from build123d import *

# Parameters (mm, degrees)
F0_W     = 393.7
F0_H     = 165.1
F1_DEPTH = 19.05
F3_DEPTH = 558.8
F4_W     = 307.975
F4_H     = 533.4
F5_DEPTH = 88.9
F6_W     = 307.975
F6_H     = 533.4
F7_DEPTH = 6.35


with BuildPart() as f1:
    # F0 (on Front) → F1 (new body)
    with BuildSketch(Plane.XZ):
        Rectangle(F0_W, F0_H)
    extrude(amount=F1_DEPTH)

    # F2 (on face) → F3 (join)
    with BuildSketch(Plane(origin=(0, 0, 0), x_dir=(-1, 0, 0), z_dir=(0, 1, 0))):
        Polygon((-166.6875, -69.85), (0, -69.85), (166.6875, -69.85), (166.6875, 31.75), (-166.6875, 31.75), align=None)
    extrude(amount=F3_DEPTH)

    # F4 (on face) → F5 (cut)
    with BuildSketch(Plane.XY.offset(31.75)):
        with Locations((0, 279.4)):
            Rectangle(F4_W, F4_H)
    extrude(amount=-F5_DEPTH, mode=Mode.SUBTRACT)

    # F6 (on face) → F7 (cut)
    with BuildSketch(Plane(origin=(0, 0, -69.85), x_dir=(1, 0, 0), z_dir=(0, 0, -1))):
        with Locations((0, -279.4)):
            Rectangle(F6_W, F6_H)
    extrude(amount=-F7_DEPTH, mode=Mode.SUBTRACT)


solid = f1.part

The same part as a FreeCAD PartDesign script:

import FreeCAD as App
import Part
import Sketcher

V = App.Vector
Q = App.Units.Quantity


def add_polygon(sketch, points):
    """Adds a closed chain of lines whose ends are joined by coincident constraints."""
    first, n = sketch.GeometryCount, len(points)
    for a, b in zip(points, points[1:] + points[:1]):
        sketch.addGeometry(Part.LineSegment(App.Vector(*a, 0), App.Vector(*b, 0)), False)
    for i in range(n):
        sketch.addConstraint(Sketcher.Constraint("Coincident", first + i, 2, first + (i + 1) % n, 1))

doc = App.newDocument("Part")
body = doc.addObject("PartDesign::Body", "Body")

# Sketch on XZ plane
sketch1 = body.newObject("Sketcher::SketchObject", "Sketch")
sketch1.AttachmentSupport = (doc.getObject("XZ_Plane"), [""])
sketch1.MapMode = "FlatFace"
add_polygon(sketch1, [(-197, 83), (-197, -83), (197, -83), (197, 83)])  # lines 0-3
sketch1.addConstraint(Sketcher.Constraint("Vertical", 0))
sketch1.addConstraint(Sketcher.Constraint("Horizontal", 1))
sketch1.addConstraint(Sketcher.Constraint("Vertical", 2))
sketch1.addConstraint(Sketcher.Constraint("Horizontal", 3))
sketch1.addConstraint(Sketcher.Constraint("Symmetric", 0, 2, 2, 2, -1, 1))
sketch1.addConstraint(Sketcher.Constraint("DistanceX", 1, 1, 1, 2, Q("15.5 in")))
sketch1.addConstraint(Sketcher.Constraint("DistanceY", 0, 2, 0, 1, Q("6.5 in")))
pad1 = body.newObject("PartDesign::Pad", "Pad")
pad1.Profile = sketch1
pad1.Length = Q("0.75 in")

# Sketch on XZ plane
sketch2 = body.newObject("Sketcher::SketchObject", "Sketch001")
sketch2.AttachmentSupport = (doc.getObject("XZ_Plane"), [""])
sketch2.MapMode = "FlatFace"
add_polygon(sketch2, [(167, -70), (-167, -70), (-167, 32), (167, 32)])  # lines 0-3
sketch2.addConstraint(Sketcher.Constraint("Horizontal", 0))
sketch2.addConstraint(Sketcher.Constraint("Vertical", 1))
sketch2.addConstraint(Sketcher.Constraint("Horizontal", 2))
sketch2.addConstraint(Sketcher.Constraint("Vertical", 3))
sketch2.addConstraint(Sketcher.Constraint("DistanceY", 1, 1, 1, 2, Q("4 in")))
sketch2.addConstraint(Sketcher.Constraint("DistanceX", 0, 2, 0, 1, Q("13.125 in")))
sketch2.addConstraint(Sketcher.Constraint("DistanceY", 0, 2, -1, 1, Q("2.75 in")))
sketch2.addConstraint(Sketcher.Constraint("DistanceX", 0, 2, -1, 1, Q("6.5625 in")))
pad2 = body.newObject("PartDesign::Pad", "Pad001")
pad2.Profile = sketch2
pad2.Length = Q("22 in")
pad2.Reversed = True

# Sketch on XY plane
sketch3 = body.newObject("Sketcher::SketchObject", "Sketch002")
sketch3.AttachmentSupport = (doc.getObject("XY_Plane"), [""])
sketch3.MapMode = "FlatFace"
sketch3.AttachmentOffset = App.Placement(V(0, 0, 1.25 * 25.4), App.Rotation())
add_polygon(sketch3, [(-154, 546), (-154, 13), (154, 13), (154, 546)])  # lines 0-3
sketch3.addConstraint(Sketcher.Constraint("Vertical", 0))
sketch3.addConstraint(Sketcher.Constraint("Horizontal", 1))
sketch3.addConstraint(Sketcher.Constraint("Vertical", 2))
sketch3.addConstraint(Sketcher.Constraint("Horizontal", 3))
sketch3.addConstraint(Sketcher.Constraint("DistanceY", 0, 2, 0, 1, Q("21 in")))
sketch3.addConstraint(Sketcher.Constraint("DistanceY", -1, 1, 0, 2, Q("0.5 in")))
sketch3.addConstraint(Sketcher.Constraint("DistanceX", 1, 1, 1, 2, Q("12.125 in")))
sketch3.addConstraint(Sketcher.Constraint("DistanceX", 0, 2, -1, 1, Q("6.0625 in")))
pocket1 = body.newObject("PartDesign::Pocket", "Pocket")
pocket1.Profile = sketch3
pocket1.Length = Q("3.5 in")

# Sketch on XY plane
sketch4 = body.newObject("Sketcher::SketchObject", "Sketch003")
sketch4.AttachmentSupport = (doc.getObject("XY_Plane"), [""])
sketch4.MapMode = "FlatFace"
sketch4.AttachmentOffset = App.Placement(V(0, 0, -2.75 * 25.4), App.Rotation())
add_polygon(sketch4, [(-154, 13), (-154, 546), (154, 546), (154, 13)])  # lines 0-3
sketch4.addConstraint(Sketcher.Constraint("Vertical", 0))
sketch4.addConstraint(Sketcher.Constraint("Horizontal", 1))
sketch4.addConstraint(Sketcher.Constraint("Vertical", 2))
sketch4.addConstraint(Sketcher.Constraint("Horizontal", 3))
sketch4.addConstraint(Sketcher.Constraint("DistanceY", 0, 1, 0, 2, Q("21 in")))
sketch4.addConstraint(Sketcher.Constraint("DistanceY", -1, 1, 0, 2, Q("21.5 in")))
sketch4.addConstraint(Sketcher.Constraint("DistanceX", 1, 1, 1, 2, Q("12.125 in")))
sketch4.addConstraint(Sketcher.Constraint("DistanceX", 0, 2, -1, 1, Q("6.0625 in")))
pocket2 = body.newObject("PartDesign::Pocket", "Pocket001")
pocket2.Profile = sketch4
pocket2.Length = Q("0.25 in")
pocket2.Reversed = True

doc.recompute()
